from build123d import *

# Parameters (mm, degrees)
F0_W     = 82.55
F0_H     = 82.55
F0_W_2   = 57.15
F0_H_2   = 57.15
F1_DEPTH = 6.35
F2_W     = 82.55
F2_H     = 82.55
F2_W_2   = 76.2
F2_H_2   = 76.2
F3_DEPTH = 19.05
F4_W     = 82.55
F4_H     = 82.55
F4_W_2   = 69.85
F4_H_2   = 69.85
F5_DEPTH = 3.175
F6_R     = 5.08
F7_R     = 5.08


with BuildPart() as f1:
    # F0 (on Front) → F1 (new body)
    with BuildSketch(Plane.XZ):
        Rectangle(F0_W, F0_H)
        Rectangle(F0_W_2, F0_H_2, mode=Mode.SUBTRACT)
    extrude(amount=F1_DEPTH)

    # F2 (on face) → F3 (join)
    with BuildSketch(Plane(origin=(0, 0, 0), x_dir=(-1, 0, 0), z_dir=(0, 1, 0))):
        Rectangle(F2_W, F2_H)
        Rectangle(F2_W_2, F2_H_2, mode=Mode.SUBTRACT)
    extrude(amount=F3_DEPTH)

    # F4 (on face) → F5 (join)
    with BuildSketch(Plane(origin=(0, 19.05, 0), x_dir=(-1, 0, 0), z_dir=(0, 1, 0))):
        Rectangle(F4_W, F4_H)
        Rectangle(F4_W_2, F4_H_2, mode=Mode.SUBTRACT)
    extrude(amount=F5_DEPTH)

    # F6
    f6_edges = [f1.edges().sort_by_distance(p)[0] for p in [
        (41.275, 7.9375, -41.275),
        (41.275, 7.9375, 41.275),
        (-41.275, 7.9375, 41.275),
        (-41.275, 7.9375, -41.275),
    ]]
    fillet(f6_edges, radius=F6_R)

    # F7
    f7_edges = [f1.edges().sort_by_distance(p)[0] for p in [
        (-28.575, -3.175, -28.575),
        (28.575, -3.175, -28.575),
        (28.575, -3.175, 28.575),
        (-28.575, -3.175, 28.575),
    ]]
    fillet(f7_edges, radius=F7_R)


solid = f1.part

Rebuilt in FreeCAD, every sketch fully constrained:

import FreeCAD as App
import Part
import Sketcher
from FreeCAD import Vector
Q = App.Units.Quantity


def edges_at(feature, points):
    """Names of the edges that pass closest to the given points."""
    edges = feature.Shape.Edges
    near = lambda p: min(range(len(edges)), key=lambda i: edges[i].distToShape(Part.Vertex(*p))[0])
    return sorted({f"Edge{near(p) + 1}" for p in points})


def add_polygon(sketch, points):
    """Adds a closed chain of lines whose ends are joined by coincident constraints."""
    first, n = sketch.GeometryCount, len(points)
    for a, b in zip(points, points[1:] + points[:1]):
        sketch.addGeometry(Part.LineSegment(App.Vector(*a, 0), App.Vector(*b, 0)), False)
    for i in range(n):
        sketch.addConstraint(Sketcher.Constraint("Coincident", first + i, 2, first + (i + 1) % n, 1))

doc = App.newDocument("Part")
body = doc.addObject("PartDesign::Body", "Body")

# Sketch on XZ plane
sketch1 = doc.addObject("Sketcher::SketchObject", "Sketch")
body.addObject(sketch1)
sketch1.AttachmentSupport = (doc.XZ_Plane, [""])
sketch1.MapMode = "FlatFace"
add_polygon(sketch1, [(-41, 41), (-41, -41), (41, -41), (41, 41)])  # lines 0-3
add_polygon(sketch1, [(29, -29), (-29, -29), (-29, 29), (29, 29)])  # lines 4-7
sketch1.addConstraint(Sketcher.Constraint("Vertical", 0))
sketch1.addConstraint(Sketcher.Constraint("Horizontal", 1))
sketch1.addConstraint(Sketcher.Constraint("Vertical", 2))
sketch1.addConstraint(Sketcher.Constraint("Horizontal", 3))
sketch1.addConstraint(Sketcher.Constraint("Horizontal", 4))
sketch1.addConstraint(Sketcher.Constraint("Vertical", 5))
sketch1.addConstraint(Sketcher.Constraint("Horizontal", 6))
sketch1.addConstraint(Sketcher.Constraint("Vertical", 7))
sketch1.addConstraint(Sketcher.Constraint("Symmetric", 0, 2, 2, 2, -1, 1))
sketch1.addConstraint(Sketcher.Constraint("Symmetric", 4, 2, 6, 2, -1, 1))
sketch1.addConstraint(Sketcher.Constraint("Equal", 3, 0))
sketch1.addConstraint(Sketcher.Constraint("Equal", 6, 5))
sketch1.addConstraint(Sketcher.Constraint("DistanceX", 1, 1, 1, 2, Q("3.25 in")))
sketch1.addConstraint(Sketcher.Constraint("DistanceX", 4, 2, 4, 1, Q("2.25 in")))
pad1 = doc.addObject("PartDesign::Pad", "Pad")
body.addObject(pad1)
pad1.Profile = sketch1
pad1.Length = Q("0.25 in")

# Sketch on XZ plane
sketch2 = doc.addObject("Sketcher::SketchObject", "Sketch001")
body.addObject(sketch2)
sketch2.AttachmentSupport = (doc.XZ_Plane, [""])
sketch2.MapMode = "FlatFace"
add_polygon(sketch2, [(41, 41), (41, -41), (-41, -41), (-41, 41)])  # lines 0-3
add_polygon(sketch2, [(-38, -38), (38, -38), (38, 38), (-38, 38)])  # lines 4-7
sketch2.addConstraint(Sketcher.Constraint("Vertical", 0))
sketch2.addConstraint(Sketcher.Constraint("Horizontal", 1))
sketch2.addConstraint(Sketcher.Constraint("Vertical", 2))
sketch2.addConstraint(Sketcher.Constraint("Horizontal", 3))
sketch2.addConstraint(Sketcher.Constraint("Horizontal", 4))
sketch2.addConstraint(Sketcher.Constraint("Vertical", 5))
sketch2.addConstraint(Sketcher.Constraint("Horizontal", 6))
sketch2.addConstraint(Sketcher.Constraint("Vertical", 7))
sketch2.addConstraint(Sketcher.Constraint("Symmetric", 0, 2, 2, 2, -1, 1))
sketch2.addConstraint(Sketcher.Constraint("Symmetric", 4, 2, 6, 2, -1, 1))
sketch2.addConstraint(Sketcher.Constraint("Equal", 3, 0))
sketch2.addConstraint(Sketcher.Constraint("Equal", 6, 5))
sketch2.addConstraint(Sketcher.Constraint("DistanceX", 4, 1, 4, 2, Q("3 in")))
sketch2.addConstraint(Sketcher.Constraint("DistanceX", 1, 2, 1, 1, Q("3.25 in")))
pad2 = doc.addObject("PartDesign::Pad", "Pad001")
body.addObject(pad2)
pad2.Profile = sketch2
pad2.Length = Q("0.75 in")
pad2.Reversed = True

# Sketch on XZ plane
sketch3 = doc.addObject("Sketcher::SketchObject", "Sketch002")
body.addObject(sketch3)
sketch3.AttachmentSupport = (doc.XZ_Plane, [""])
sketch3.MapMode = "FlatFace"
sketch3.AttachmentOffset = App.Placement(Vector(0, 0, -0.75 * 25.4), App.Rotation())
add_polygon(sketch3, [(41, 41), (41, -41), (-41, -41), (-41, 41)])  # lines 0-3
add_polygon(sketch3, [(-35, -35), (35, -35), (35, 35), (-35, 35)])  # lines 4-7
sketch3.addConstraint(Sketcher.Constraint("Vertical", 0))
sketch3.addConstraint(Sketcher.Constraint("Horizontal", 1))
sketch3.addConstraint(Sketcher.Constraint("Vertical", 2))
sketch3.addConstraint(Sketcher.Constraint("Horizontal", 3))
sketch3.addConstraint(Sketcher.Constraint("Horizontal", 4))
sketch3.addConstraint(Sketcher.Constraint("Vertical", 5))
sketch3.addConstraint(Sketcher.Constraint("Horizontal", 6))
sketch3.addConstraint(Sketcher.Constraint("Vertical", 7))
sketch3.addConstraint(Sketcher.Constraint("Symmetric", 0, 2, 2, 2, -1, 1))
sketch3.addConstraint(Sketcher.Constraint("Symmetric", 4, 2, 6, 2, -1, 1))
sketch3.addConstraint(Sketcher.Constraint("Equal", 3, 0))
sketch3.addConstraint(Sketcher.Constraint("Equal", 6, 5))
sketch3.addConstraint(Sketcher.Constraint("DistanceX", 1, 2, 4, 2, Q("3 in")))
sketch3.addConstraint(Sketcher.Constraint("DistanceX", 1, 2, 1, 1, Q("3.25 in")))
pad3 = doc.addObject("PartDesign::Pad", "Pad002")
body.addObject(pad3)
pad3.Profile = sketch3
pad3.Length = Q("0.125 in")
pad3.Reversed = True
doc.recompute()

fillet = doc.addObject("PartDesign::Fillet", "Fillet")
body.addObject(fillet)
fillet.Base = (pad3, edges_at(pad3, [
    (41.275, 7.938, -41.275),
    (41.275, 7.938, 41.275),
    (-41.275, 7.938, 41.275),
    (-41.275, 7.938, -41.275),
]))
fillet.Radius = Q("0.2 in")
doc.recompute()

fillet2 = doc.addObject("PartDesign::Fillet", "Fillet001")
body.addObject(fillet2)
fillet2.Base = (fillet, edges_at(fillet, [
    (-28.575, -3.175, -28.575),
    (28.575, -3.175, -28.575),
    (28.575, -3.175, 28.575),
    (-28.575, -3.175, 28.575),
]))
fillet2.Radius = Q("0.2 in")

doc.recompute()
